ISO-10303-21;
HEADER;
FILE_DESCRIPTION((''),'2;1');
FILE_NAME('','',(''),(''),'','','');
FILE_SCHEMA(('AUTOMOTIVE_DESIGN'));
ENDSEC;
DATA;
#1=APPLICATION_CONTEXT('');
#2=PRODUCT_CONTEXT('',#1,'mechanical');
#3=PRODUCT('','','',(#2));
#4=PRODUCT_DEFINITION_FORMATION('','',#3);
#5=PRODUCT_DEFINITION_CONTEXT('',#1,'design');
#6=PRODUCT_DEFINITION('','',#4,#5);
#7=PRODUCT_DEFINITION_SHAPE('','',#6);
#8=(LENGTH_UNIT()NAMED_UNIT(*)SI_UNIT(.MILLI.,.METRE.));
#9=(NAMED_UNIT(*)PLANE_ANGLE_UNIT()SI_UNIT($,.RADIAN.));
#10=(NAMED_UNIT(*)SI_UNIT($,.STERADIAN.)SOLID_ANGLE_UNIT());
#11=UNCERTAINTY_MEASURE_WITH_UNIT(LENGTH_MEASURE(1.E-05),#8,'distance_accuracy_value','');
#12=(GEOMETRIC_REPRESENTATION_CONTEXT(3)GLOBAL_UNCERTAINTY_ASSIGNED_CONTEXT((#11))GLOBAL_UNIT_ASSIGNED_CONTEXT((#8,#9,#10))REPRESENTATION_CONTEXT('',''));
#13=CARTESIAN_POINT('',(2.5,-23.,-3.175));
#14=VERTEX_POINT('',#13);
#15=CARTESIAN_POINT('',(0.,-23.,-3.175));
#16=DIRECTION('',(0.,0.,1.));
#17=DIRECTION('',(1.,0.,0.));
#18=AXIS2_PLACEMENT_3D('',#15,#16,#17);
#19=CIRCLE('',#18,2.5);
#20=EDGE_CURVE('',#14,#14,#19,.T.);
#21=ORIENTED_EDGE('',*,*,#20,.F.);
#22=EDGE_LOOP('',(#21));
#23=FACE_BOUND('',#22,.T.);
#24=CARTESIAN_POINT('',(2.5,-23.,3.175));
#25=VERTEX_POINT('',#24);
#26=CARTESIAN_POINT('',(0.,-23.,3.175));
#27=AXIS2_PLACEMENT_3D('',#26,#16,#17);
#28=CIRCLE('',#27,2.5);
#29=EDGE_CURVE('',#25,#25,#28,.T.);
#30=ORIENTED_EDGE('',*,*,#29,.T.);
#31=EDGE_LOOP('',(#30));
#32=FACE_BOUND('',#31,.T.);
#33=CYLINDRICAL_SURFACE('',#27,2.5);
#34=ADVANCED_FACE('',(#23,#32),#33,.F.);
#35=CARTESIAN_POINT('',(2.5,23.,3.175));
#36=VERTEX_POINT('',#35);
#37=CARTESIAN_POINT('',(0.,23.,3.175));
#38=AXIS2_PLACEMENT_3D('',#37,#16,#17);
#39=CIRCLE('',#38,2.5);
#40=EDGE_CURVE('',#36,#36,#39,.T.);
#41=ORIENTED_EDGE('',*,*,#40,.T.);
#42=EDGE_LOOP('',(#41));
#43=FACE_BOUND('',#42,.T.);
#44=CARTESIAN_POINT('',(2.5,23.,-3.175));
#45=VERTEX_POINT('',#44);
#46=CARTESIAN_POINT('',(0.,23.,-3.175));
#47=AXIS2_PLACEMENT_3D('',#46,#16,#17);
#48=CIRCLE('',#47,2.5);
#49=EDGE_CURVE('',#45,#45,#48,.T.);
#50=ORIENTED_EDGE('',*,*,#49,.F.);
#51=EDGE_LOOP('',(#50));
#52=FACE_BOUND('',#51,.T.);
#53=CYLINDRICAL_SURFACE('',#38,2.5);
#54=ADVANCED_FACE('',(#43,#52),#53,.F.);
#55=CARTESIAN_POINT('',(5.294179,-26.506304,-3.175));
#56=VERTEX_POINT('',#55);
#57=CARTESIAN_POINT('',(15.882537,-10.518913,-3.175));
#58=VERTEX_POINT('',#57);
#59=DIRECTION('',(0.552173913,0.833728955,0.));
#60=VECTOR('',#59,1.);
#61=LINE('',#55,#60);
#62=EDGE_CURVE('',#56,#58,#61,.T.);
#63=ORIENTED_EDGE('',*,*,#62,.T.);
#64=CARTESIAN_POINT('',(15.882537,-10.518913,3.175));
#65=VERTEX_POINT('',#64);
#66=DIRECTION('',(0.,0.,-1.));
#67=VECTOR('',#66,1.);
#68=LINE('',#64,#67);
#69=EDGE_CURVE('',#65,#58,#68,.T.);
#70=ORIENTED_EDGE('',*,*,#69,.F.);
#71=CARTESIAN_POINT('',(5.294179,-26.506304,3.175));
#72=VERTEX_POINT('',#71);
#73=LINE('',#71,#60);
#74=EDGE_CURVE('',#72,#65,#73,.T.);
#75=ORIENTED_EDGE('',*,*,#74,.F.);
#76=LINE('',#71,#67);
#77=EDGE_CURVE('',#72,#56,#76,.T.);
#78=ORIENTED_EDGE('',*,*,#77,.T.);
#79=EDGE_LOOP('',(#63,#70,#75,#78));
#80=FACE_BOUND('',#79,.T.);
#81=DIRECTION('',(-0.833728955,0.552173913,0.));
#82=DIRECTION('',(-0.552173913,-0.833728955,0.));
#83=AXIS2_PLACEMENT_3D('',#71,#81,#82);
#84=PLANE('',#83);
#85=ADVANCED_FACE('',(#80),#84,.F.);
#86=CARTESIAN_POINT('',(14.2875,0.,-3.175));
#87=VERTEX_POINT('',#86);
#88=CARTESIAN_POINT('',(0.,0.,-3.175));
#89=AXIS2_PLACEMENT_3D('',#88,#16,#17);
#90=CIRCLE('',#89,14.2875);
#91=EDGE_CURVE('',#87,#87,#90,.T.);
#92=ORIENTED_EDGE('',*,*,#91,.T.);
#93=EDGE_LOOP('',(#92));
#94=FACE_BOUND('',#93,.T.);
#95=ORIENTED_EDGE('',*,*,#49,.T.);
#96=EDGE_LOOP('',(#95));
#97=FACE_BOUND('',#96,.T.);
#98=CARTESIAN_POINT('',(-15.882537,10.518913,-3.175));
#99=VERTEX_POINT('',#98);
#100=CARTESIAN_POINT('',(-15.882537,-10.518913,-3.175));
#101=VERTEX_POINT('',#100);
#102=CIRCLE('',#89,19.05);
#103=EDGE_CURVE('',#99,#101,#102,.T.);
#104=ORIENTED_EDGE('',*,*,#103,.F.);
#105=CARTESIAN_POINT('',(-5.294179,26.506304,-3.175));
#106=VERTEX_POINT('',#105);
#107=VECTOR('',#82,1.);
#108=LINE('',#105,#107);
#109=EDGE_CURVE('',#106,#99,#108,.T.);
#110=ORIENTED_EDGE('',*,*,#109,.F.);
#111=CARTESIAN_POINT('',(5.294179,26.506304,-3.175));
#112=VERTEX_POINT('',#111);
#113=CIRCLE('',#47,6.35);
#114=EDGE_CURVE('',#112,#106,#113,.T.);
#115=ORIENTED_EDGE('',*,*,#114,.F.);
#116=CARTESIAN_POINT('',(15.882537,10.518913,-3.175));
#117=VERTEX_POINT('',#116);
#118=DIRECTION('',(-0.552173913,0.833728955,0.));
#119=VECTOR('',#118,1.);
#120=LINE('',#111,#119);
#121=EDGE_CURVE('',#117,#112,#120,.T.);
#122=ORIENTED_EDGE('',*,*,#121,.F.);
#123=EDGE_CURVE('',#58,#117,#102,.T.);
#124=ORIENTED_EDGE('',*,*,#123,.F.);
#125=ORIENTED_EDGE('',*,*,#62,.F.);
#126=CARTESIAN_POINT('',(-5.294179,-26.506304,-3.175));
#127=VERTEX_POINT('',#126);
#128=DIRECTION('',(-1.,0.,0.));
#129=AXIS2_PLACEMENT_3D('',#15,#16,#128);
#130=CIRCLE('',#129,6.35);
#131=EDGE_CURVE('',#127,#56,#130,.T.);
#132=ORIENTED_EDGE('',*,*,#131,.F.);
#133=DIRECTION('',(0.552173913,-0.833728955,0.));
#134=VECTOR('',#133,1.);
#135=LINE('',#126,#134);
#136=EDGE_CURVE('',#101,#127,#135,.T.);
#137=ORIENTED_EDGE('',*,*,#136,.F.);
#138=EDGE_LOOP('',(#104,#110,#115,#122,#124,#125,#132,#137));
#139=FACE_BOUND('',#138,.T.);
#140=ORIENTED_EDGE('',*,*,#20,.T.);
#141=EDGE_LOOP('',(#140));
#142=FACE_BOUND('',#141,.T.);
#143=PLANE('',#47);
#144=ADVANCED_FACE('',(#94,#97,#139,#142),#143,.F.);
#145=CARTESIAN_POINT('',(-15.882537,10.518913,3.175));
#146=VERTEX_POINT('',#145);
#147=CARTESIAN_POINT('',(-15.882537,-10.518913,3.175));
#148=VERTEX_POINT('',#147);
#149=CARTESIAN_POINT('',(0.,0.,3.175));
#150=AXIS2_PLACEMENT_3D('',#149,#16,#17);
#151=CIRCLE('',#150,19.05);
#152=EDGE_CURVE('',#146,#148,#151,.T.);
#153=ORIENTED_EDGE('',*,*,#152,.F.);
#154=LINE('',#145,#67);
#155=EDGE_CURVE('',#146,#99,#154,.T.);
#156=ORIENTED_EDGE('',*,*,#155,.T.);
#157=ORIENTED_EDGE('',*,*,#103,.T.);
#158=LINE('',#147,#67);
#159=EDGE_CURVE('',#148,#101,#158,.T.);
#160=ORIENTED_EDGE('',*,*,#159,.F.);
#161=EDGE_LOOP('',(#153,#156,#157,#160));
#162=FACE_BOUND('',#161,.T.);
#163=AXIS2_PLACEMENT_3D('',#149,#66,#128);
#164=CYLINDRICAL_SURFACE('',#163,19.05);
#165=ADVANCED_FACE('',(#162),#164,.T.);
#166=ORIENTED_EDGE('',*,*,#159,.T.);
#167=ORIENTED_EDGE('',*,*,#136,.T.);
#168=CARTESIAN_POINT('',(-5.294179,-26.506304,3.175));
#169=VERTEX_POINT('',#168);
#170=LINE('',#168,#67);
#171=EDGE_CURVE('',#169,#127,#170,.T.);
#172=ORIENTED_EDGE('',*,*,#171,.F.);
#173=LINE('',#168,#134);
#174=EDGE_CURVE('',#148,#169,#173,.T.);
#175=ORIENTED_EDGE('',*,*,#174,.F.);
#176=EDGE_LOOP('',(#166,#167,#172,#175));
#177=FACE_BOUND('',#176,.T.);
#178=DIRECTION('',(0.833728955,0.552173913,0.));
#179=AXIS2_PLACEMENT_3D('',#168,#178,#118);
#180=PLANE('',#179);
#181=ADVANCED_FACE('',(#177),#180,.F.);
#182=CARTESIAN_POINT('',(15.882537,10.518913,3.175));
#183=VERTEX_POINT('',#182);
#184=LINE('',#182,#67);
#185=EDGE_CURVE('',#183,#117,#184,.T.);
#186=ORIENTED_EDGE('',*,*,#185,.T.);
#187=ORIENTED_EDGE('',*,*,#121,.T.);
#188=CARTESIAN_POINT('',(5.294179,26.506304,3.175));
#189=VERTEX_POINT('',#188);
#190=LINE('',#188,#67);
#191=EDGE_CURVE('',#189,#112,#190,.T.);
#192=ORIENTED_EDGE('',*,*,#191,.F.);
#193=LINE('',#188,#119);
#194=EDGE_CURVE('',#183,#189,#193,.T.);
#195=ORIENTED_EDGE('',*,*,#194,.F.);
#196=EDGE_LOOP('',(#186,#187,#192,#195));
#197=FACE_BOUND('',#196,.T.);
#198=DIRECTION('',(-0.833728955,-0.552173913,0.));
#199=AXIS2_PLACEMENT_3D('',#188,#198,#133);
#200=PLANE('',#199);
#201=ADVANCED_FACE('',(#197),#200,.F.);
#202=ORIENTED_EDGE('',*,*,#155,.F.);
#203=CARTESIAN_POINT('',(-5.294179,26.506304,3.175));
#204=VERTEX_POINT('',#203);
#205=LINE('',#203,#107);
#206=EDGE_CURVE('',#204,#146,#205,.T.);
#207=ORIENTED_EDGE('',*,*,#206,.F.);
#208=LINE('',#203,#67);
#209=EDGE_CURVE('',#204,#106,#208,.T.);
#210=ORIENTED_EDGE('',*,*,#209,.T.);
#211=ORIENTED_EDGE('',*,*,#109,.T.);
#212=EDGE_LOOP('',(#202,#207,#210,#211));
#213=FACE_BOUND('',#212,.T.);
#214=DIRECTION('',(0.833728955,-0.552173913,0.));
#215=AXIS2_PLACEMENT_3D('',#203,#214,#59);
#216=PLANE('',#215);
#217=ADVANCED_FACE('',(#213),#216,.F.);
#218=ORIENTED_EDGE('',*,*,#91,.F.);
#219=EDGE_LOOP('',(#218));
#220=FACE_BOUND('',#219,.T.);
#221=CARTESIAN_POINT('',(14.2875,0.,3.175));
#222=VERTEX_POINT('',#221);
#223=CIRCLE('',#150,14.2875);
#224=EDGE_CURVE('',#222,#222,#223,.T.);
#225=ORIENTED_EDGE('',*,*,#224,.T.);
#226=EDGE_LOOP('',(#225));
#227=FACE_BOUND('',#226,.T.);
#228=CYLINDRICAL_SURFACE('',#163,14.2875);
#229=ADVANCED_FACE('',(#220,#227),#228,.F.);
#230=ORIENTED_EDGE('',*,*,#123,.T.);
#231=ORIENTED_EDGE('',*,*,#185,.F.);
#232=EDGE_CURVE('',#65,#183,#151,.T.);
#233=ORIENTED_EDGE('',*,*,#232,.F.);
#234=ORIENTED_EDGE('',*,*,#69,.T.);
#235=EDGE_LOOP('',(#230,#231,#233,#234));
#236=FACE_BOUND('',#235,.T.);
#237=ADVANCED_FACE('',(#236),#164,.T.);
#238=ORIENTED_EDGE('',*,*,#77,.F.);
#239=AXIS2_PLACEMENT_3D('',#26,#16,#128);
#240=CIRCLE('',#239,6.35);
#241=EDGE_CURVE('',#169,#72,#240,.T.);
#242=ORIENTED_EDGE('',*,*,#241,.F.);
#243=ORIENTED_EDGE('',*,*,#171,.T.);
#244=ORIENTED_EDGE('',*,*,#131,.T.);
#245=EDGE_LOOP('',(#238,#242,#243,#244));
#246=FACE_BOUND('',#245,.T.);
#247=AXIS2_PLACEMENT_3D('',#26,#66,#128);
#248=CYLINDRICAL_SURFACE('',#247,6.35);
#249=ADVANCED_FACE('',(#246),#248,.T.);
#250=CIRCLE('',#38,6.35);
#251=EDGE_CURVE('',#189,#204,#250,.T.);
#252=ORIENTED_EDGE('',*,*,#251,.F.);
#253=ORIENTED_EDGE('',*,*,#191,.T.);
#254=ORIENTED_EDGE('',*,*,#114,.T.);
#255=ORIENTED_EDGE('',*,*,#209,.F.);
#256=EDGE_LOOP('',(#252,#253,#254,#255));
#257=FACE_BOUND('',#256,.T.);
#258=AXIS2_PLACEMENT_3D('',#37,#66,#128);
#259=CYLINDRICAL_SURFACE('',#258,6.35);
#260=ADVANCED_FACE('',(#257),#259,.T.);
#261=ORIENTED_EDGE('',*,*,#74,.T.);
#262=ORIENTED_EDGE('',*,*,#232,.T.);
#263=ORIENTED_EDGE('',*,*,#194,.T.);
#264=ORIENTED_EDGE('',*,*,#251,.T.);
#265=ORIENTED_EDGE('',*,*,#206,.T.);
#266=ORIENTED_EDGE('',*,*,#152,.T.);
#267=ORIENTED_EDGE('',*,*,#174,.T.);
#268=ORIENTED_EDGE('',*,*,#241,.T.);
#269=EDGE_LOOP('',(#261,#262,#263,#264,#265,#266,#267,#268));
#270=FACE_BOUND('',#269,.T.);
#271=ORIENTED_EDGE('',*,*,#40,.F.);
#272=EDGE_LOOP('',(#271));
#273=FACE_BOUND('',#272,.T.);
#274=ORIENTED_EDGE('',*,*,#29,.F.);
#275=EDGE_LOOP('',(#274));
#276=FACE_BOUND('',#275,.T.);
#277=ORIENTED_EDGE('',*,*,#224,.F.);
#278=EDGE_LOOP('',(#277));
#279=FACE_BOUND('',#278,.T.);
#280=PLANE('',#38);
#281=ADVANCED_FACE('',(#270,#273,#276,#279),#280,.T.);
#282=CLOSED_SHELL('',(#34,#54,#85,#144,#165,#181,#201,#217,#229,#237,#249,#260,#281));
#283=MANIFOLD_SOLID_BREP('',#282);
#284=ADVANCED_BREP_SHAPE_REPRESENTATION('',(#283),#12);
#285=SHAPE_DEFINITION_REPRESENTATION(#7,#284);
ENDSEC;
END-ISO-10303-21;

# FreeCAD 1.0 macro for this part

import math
import FreeCAD as App
import Part
import Sketcher

V = App.Vector
Q = App.Units.Quantity

doc = App.newDocument("Part")
body = doc.addObject("PartDesign::Body", "Body")

sketch1 = body.newObject("Sketcher::SketchObject", "Sketch")
sketch1.AttachmentSupport = (doc.getObject("XY_Plane"), [""])
sketch1.MapMode = "FlatFace"
sketch1.addGeometry(Part.LineSegment(V(-5, 27, 0), V(-16, 11, 0)), False)
sketch1.addGeometry(Part.ArcOfCircle(Part.Circle(V(0, 0, 0), V(0, 0, 1), 19), math.radians(146), math.radians(214)), False)
sketch1.addGeometry(Part.LineSegment(V(-16, -11, 0), V(-5, -27, 0)), False)
sketch1.addGeometry(Part.ArcOfCircle(Part.Circle(V(0, -23, 0), V(0, 0, 1), 6), math.radians(-146), math.radians(-34)), False)
sketch1.addGeometry(Part.LineSegment(V(5, -27, 0), V(16, -11, 0)), False)
sketch1.addGeometry(Part.ArcOfCircle(Part.Circle(V(0, 0, 0), V(0, 0, 1), 19), math.radians(-34), math.radians(34)), False)
sketch1.addGeometry(Part.LineSegment(V(16, 11, 0), V(5, 27, 0)), False)
sketch1.addGeometry(Part.ArcOfCircle(Part.Circle(V(0, 23, 0), V(0, 0, 1), 6), math.radians(34), math.radians(146)), False)
sketch1.addGeometry(Part.Circle(V(0, 0, 0), V(0, 0, 1), 14), False)
sketch1.addConstraint(Sketcher.Constraint("Tangent", 0, 2, 1, 1))
sketch1.addConstraint(Sketcher.Constraint("Tangent", 1, 2, 2, 1))
sketch1.addConstraint(Sketcher.Constraint("Tangent", 2, 2, 3, 1))
sketch1.addConstraint(Sketcher.Constraint("Tangent", 3, 2, 4, 1))
sketch1.addConstraint(Sketcher.Constraint("Tangent", 4, 2, 5, 1))
sketch1.addConstraint(Sketcher.Constraint("Tangent", 5, 2, 6, 1))
sketch1.addConstraint(Sketcher.Constraint("Tangent", 6, 2, 7, 1))
sketch1.addConstraint(Sketcher.Constraint("Tangent", 7, 2, 0, 1))
sketch1.addConstraint(Sketcher.Constraint("Coincident", 1, 3, -1, 1))
sketch1.addConstraint(Sketcher.Constraint("Coincident", 5, 3, -1, 1))
sketch1.addConstraint(Sketcher.Constraint("Coincident", 8, 3, -1, 1))
sketch1.addConstraint(Sketcher.Constraint("Equal", 1, 5))
sketch1.addConstraint(Sketcher.Constraint("Equal", 3, 7))
sketch1.addConstraint(Sketcher.Constraint("Symmetric", 3, 3, 7, 3, -1, 1))
sketch1.addConstraint(Sketcher.Constraint("PointOnObject", 3, 3, -2))
sketch1.addConstraint(Sketcher.Constraint("Radius", 1, Q("0.75 in")))
sketch1.addConstraint(Sketcher.Constraint("Radius", 3, Q("0.25 in")))
sketch1.addConstraint(Sketcher.Constraint("Diameter", 8, Q("1.125 in")))
sketch1.addConstraint(Sketcher.Constraint("DistanceY", 3, 3, -1, 1, Q("23 mm")))
pad1 = body.newObject("PartDesign::Pad", "Pad")
pad1.Profile = sketch1
pad1.Length = Q("0.25 in")
pad1.Midplane = True

sketch2 = body.newObject("Sketcher::SketchObject", "Sketch001")
sketch2.AttachmentSupport = (doc.getObject("XY_Plane"), [""])
sketch2.MapMode = "FlatFace"
sketch2.AttachmentOffset = App.Placement(V(0, 0, 0.125 * 25.4), App.Rotation())
sketch2.addGeometry(Part.Circle(V(0, 23, 0), V(0, 0, 1), 2.5), False)
sketch2.addGeometry(Part.Circle(V(0, -23, 0), V(0, 0, 1), 2.5), False)
sketch2.addConstraint(Sketcher.Constraint("Equal", 0, 1))
sketch2.addConstraint(Sketcher.Constraint("Symmetric", 0, 3, 1, 3, -1, 1))
sketch2.addConstraint(Sketcher.Constraint("PointOnObject", 0, 3, -2))
sketch2.addConstraint(Sketcher.Constraint("Diameter", 0, Q("5 mm")))
sketch2.addConstraint(Sketcher.Constraint("DistanceY", -1, 1, 0, 3, Q("23 mm")))
doc.recompute()
hole = body.newObject("PartDesign::Hole", "Hole")
hole.Profile = sketch2
hole.ThreadType = "None"
hole.Diameter = 5
hole.DepthType = "ThroughAll"

doc.recompute()
